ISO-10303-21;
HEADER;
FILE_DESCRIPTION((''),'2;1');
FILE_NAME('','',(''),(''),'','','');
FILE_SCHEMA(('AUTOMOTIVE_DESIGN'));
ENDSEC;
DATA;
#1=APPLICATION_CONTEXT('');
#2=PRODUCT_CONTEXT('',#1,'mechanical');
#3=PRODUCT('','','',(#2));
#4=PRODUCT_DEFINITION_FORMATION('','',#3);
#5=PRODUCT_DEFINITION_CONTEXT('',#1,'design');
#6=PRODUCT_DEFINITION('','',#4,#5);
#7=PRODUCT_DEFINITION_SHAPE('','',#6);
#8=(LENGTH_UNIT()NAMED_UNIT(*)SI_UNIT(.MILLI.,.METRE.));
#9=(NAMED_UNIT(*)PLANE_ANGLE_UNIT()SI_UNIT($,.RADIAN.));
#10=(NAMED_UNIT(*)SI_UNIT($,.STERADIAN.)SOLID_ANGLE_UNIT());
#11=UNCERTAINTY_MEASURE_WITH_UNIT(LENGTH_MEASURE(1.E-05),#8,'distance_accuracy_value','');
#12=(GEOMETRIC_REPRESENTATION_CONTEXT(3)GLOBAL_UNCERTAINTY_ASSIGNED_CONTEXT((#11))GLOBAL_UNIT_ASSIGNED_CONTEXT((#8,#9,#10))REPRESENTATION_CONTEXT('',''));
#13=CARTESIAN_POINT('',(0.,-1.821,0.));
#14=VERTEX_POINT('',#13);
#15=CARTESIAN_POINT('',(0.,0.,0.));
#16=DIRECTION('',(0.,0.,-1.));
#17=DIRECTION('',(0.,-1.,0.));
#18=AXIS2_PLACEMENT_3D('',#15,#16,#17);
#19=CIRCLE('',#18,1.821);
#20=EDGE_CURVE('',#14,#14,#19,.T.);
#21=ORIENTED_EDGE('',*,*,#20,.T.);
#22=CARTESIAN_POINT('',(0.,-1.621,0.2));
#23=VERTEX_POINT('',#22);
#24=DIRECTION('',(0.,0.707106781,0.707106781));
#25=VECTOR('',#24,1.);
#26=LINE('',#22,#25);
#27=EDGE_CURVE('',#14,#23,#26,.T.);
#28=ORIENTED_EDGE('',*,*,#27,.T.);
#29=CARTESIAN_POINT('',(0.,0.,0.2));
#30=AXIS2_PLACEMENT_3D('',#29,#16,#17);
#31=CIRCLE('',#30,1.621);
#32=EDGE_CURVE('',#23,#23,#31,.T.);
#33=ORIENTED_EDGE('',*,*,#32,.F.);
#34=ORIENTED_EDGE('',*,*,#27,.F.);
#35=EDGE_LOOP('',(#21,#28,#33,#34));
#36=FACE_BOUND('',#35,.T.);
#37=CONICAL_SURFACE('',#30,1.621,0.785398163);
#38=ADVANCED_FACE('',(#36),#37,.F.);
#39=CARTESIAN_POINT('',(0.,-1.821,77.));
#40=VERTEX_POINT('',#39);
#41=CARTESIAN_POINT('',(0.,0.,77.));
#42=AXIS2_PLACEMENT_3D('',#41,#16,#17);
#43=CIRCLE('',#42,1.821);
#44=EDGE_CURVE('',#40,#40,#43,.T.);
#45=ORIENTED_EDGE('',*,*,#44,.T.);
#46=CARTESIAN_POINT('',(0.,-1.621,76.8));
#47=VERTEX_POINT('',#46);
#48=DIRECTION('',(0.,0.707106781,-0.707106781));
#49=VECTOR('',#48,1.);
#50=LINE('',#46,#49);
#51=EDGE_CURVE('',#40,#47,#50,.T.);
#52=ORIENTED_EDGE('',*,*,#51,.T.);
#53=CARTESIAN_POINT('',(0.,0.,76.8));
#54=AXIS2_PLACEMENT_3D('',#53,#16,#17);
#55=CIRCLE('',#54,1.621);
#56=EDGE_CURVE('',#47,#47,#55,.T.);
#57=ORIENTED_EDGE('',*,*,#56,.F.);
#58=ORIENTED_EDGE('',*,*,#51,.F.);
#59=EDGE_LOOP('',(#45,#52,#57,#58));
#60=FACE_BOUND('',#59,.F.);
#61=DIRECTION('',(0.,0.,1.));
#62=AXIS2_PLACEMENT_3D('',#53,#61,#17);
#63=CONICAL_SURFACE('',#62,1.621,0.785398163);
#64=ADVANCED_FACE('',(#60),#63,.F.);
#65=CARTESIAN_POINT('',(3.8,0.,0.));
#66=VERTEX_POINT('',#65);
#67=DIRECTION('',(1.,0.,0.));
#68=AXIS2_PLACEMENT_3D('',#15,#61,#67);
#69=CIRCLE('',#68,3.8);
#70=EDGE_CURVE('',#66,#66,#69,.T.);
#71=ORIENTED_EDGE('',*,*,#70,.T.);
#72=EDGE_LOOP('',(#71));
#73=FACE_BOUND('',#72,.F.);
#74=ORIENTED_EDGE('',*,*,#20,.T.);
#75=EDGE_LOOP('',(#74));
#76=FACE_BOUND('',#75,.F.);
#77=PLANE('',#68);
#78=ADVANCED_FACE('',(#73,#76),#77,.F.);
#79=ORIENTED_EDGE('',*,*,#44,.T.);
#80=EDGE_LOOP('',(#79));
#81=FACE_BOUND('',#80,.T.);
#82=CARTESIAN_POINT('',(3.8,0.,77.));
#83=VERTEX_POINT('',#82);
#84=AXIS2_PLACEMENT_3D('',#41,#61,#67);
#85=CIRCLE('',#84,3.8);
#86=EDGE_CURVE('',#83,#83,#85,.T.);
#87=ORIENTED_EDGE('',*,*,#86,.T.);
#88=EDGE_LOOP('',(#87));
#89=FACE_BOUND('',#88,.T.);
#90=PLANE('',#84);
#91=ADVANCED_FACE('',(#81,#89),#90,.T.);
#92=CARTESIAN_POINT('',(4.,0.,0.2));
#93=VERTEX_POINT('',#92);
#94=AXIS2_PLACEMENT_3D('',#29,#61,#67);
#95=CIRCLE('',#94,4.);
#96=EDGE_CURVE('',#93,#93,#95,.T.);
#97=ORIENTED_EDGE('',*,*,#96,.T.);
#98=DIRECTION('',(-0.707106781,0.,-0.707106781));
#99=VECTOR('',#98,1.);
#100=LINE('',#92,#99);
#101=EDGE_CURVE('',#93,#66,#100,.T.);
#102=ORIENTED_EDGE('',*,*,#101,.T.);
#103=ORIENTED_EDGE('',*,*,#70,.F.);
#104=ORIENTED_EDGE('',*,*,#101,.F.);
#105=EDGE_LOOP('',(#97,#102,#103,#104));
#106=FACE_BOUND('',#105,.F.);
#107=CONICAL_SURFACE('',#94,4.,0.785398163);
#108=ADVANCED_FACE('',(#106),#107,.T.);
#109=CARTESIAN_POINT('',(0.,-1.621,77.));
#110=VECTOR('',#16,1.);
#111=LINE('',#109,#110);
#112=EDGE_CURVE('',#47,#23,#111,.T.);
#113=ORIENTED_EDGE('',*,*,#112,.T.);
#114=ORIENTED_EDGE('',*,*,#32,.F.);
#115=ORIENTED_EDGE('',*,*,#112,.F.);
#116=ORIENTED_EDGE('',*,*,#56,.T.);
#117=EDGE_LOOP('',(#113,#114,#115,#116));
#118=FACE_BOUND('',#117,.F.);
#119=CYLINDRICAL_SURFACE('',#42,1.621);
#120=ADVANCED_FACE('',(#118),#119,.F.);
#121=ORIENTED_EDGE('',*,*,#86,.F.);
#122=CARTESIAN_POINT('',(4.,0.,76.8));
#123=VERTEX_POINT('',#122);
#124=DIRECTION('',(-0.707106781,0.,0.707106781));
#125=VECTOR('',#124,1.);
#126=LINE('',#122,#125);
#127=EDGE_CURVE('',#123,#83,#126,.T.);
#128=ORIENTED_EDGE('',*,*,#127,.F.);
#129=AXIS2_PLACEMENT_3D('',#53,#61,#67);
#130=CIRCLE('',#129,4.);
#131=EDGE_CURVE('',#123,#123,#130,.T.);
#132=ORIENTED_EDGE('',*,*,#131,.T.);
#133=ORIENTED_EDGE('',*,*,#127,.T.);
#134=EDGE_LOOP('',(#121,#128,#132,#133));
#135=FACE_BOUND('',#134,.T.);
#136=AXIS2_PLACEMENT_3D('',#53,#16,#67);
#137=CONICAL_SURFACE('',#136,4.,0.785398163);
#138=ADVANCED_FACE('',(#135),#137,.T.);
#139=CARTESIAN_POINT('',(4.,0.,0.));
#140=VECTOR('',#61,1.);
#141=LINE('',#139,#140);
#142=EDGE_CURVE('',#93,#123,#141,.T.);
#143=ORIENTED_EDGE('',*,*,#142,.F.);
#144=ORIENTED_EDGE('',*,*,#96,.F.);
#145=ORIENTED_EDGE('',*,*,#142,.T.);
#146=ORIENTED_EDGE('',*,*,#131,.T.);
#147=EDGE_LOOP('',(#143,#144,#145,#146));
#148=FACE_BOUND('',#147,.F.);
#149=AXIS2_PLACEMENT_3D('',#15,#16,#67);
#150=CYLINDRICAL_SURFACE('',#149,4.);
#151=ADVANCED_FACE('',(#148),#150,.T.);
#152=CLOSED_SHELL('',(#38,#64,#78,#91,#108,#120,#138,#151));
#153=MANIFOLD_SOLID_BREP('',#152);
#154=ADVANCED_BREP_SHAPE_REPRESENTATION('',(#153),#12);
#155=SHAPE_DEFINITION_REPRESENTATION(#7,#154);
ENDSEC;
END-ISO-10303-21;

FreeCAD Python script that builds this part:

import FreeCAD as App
import Part
import Sketcher

V = App.Vector
Q = App.Units.Quantity


def edges_at(feature, points):
    """Names of the edges that pass closest to the given points."""
    edges = feature.Shape.Edges
    near = lambda p: min(range(len(edges)), key=lambda i: edges[i].distToShape(Part.Vertex(*p))[0])
    return sorted({f"Edge{near(p) + 1}" for p in points})

doc = App.newDocument("Part")
body = doc.addObject("PartDesign::Body", "Body")

sketch1 = body.newObject("Sketcher::SketchObject", "Sketch")
sketch1.AttachmentSupport = (doc.getObject("XY_Plane"), [""])
sketch1.MapMode = "FlatFace"
sketch1.addGeometry(Part.Circle(V(0, 0, 0), V(0, 0, 1), 4), False)
sketch1.addConstraint(Sketcher.Constraint("Coincident", 0, 3, -1, 1))
sketch1.addConstraint(Sketcher.Constraint("Diameter", 0, Q("8 mm")))
pad1 = body.newObject("PartDesign::Pad", "Pad")
pad1.Profile = sketch1
pad1.Length = 77

sketch2 = body.newObject("Sketcher::SketchObject", "Sketch001")
sketch2.AttachmentSupport = (doc.getObject("XY_Plane"), [""])
sketch2.MapMode = "FlatFace"
sketch2.AttachmentOffset = App.Placement(V(0, 0, 77), App.Rotation())
sketch2.addGeometry(Part.Circle(V(0, 0, 0), V(0, 0, 1), 1.621), False)
sketch2.addConstraint(Sketcher.Constraint("Coincident", 0, 3, -1, 1))
sketch2.addConstraint(Sketcher.Constraint("Diameter", 0, Q("3.242 mm")))
doc.recompute()
hole = body.newObject("PartDesign::Hole", "Hole")
hole.Profile = sketch2
hole.ThreadType = "None"
hole.Diameter = 3.242
hole.DepthType = "ThroughAll"
doc.recompute()

chamfer = body.newObject("PartDesign::Chamfer", "Chamfer")
chamfer.Base = (hole, edges_at(hole, [
    (0, 1.621, 77),
    (0, 1.621, 0),
    (-4, 0, 77),
    (-4, 0, 0),
]))
chamfer.Size = 0.2

doc.recompute()
